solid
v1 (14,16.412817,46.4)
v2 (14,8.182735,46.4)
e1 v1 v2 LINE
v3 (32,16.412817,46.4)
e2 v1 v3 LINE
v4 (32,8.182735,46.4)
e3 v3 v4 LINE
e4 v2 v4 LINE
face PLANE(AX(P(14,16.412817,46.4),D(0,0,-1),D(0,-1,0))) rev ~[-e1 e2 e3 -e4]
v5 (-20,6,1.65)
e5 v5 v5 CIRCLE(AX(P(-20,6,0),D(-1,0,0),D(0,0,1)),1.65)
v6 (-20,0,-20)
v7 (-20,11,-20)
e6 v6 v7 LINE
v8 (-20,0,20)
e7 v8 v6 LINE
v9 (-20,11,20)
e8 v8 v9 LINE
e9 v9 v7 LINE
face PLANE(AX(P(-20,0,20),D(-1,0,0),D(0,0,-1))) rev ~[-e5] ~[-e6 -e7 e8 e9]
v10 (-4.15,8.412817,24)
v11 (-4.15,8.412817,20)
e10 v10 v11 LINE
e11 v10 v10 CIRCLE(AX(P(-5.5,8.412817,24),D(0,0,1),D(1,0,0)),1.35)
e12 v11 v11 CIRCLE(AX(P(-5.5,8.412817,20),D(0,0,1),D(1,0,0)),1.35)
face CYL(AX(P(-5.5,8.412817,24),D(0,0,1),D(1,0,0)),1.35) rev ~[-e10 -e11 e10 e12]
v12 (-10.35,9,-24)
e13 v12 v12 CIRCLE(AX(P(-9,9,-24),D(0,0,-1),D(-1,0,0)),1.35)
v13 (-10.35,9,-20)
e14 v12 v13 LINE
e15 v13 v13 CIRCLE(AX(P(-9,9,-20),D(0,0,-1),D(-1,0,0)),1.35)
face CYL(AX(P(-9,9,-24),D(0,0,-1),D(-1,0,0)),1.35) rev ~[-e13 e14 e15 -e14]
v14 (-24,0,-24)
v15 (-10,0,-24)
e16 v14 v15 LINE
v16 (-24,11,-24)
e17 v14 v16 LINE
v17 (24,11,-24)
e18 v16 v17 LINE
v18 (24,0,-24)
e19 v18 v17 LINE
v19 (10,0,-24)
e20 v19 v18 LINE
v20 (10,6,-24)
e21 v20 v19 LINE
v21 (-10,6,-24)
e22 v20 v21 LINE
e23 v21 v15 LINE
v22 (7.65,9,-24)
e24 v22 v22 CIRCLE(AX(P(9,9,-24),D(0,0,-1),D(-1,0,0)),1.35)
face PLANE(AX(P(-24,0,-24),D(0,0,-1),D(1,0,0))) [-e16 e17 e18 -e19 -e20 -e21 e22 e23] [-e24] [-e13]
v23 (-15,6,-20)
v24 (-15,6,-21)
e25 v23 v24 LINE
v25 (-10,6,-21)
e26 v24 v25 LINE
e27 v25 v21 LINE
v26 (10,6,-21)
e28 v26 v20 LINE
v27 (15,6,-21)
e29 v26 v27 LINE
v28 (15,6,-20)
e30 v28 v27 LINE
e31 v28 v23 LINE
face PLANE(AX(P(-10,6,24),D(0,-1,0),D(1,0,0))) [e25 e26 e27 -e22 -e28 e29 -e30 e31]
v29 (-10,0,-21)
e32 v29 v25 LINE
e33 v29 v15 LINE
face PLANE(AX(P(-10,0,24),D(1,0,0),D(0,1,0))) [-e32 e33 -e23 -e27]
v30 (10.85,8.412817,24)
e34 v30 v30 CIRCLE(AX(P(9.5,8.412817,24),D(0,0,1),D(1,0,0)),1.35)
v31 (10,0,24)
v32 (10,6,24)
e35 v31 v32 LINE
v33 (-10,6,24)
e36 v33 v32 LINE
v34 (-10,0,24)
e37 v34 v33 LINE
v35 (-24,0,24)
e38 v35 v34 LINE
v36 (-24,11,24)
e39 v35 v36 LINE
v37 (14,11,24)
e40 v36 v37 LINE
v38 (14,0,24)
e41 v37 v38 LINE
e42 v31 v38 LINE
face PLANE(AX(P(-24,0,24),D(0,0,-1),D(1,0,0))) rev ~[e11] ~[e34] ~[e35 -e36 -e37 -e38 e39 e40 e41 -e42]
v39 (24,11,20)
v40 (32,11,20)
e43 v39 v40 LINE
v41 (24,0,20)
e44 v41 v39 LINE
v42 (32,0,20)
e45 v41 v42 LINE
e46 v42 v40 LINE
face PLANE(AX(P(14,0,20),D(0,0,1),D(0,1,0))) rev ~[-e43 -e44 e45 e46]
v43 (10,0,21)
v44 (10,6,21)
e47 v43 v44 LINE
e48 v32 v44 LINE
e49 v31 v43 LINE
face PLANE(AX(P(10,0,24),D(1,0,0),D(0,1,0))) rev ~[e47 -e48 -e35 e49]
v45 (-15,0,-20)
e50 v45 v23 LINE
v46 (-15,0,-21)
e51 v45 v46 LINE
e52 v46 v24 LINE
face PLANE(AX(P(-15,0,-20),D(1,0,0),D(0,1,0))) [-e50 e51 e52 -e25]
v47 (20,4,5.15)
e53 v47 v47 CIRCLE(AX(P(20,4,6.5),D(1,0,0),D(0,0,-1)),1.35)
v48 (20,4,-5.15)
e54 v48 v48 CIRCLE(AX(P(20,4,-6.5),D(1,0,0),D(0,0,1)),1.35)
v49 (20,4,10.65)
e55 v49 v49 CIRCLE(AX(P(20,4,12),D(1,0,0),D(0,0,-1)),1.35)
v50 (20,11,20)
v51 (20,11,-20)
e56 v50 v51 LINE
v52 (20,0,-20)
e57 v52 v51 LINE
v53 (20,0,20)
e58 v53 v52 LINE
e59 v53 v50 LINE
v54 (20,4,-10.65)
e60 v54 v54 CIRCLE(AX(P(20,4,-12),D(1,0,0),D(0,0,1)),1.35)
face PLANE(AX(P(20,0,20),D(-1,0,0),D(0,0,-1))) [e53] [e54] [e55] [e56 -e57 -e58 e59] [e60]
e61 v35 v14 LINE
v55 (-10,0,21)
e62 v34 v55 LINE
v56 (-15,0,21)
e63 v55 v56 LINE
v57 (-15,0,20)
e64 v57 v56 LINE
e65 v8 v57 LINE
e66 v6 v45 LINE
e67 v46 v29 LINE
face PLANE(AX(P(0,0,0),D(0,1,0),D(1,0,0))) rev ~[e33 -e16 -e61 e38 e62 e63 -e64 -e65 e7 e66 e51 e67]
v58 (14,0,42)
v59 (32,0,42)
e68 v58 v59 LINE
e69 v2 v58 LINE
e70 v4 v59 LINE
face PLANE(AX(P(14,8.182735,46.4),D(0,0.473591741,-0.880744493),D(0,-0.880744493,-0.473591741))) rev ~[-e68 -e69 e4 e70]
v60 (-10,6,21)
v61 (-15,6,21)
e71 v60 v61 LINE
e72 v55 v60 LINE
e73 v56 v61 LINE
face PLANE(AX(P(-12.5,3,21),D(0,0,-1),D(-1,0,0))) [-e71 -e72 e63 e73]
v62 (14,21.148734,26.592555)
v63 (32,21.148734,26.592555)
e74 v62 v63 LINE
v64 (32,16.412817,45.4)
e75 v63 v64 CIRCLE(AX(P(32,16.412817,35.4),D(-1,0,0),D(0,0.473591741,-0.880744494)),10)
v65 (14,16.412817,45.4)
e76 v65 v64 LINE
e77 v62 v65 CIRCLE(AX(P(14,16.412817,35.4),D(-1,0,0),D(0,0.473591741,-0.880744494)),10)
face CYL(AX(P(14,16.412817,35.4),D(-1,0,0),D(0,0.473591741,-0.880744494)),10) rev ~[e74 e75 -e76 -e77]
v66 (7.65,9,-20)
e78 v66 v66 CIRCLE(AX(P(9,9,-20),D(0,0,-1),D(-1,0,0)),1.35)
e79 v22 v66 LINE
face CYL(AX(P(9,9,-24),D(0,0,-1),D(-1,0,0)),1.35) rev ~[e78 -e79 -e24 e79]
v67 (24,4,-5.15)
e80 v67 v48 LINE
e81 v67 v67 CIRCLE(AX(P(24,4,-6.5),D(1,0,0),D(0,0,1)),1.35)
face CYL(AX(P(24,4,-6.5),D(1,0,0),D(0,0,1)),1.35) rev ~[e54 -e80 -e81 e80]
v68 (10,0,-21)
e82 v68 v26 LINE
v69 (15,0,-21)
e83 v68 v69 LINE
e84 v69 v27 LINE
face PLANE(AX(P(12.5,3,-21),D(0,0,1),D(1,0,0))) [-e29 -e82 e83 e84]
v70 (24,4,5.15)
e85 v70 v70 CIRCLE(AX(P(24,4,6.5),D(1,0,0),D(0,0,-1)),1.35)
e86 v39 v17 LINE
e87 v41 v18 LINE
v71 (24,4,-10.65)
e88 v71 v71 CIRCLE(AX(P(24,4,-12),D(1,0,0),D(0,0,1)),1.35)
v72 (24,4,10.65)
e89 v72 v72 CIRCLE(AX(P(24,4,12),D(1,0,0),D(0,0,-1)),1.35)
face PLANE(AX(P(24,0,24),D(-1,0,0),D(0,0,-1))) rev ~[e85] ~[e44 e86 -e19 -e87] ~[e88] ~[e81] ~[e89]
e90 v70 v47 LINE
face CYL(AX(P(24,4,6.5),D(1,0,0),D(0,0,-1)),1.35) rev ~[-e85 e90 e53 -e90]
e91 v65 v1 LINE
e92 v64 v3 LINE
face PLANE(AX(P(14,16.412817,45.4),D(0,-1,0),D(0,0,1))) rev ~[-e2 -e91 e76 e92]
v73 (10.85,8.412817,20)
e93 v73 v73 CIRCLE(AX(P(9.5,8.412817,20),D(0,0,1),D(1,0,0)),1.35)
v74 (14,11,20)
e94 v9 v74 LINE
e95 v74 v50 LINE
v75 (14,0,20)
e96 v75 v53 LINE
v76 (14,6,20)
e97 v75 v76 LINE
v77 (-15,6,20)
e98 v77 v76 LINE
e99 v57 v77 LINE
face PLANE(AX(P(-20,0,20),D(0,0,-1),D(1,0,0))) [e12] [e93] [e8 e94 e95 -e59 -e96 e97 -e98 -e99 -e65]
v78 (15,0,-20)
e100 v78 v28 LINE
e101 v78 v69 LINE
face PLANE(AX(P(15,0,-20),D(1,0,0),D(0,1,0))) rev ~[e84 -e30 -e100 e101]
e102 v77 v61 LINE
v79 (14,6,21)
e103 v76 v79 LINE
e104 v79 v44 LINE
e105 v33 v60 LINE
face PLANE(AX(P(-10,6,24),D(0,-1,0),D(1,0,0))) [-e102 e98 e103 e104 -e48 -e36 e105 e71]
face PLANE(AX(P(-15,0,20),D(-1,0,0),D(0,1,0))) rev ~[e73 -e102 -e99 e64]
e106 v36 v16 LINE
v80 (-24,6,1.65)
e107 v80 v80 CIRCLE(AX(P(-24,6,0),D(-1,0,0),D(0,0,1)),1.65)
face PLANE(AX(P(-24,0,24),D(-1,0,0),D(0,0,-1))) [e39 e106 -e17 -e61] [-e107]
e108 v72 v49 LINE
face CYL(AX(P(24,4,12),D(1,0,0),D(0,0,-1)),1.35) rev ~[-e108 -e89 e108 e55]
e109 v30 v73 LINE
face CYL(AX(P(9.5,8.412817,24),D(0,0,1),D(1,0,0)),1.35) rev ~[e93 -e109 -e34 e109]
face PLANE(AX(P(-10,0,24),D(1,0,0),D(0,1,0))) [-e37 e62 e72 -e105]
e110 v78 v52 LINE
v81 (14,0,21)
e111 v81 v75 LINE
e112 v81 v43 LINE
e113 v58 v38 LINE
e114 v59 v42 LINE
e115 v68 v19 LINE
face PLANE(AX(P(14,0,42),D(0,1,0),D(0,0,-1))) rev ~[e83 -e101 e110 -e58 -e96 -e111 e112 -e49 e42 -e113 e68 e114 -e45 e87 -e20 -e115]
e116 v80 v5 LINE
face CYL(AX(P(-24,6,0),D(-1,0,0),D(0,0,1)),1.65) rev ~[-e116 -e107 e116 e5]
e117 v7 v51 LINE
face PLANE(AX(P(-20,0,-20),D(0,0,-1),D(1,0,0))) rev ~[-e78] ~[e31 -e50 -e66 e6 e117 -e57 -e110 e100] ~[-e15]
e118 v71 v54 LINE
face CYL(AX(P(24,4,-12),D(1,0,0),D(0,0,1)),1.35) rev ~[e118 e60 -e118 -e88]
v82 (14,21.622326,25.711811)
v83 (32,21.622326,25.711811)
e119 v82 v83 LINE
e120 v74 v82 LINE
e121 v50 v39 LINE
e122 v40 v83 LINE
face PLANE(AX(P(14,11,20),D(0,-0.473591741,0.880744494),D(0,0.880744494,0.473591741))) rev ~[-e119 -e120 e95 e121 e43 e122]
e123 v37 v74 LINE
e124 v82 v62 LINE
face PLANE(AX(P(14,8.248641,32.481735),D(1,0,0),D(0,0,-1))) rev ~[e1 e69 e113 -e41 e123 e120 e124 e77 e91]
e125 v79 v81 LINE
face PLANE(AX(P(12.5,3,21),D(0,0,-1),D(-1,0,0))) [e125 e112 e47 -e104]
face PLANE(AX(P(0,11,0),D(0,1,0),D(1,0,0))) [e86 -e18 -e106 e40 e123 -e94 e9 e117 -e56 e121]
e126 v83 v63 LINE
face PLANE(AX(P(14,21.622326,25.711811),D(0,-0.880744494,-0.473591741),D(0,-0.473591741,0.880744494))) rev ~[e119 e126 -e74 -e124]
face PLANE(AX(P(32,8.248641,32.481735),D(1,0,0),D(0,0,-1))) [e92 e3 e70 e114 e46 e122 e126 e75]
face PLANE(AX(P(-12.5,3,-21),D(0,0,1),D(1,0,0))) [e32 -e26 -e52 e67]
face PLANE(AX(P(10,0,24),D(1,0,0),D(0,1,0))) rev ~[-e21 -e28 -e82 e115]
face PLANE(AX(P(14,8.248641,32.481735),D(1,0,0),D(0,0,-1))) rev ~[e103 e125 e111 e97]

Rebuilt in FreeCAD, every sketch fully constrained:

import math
import FreeCAD as App
import Part
import Sketcher

V = App.Vector


def add_polygon(sketch, points):
    """Adds a closed chain of lines whose ends are joined by coincident constraints."""
    first, n = sketch.GeometryCount, len(points)
    for a, b in zip(points, points[1:] + points[:1]):
        sketch.addGeometry(Part.LineSegment(App.Vector(*a, 0), App.Vector(*b, 0)), False)
    for i in range(n):
        sketch.addConstraint(Sketcher.Constraint("Coincident", first + i, 2, first + (i + 1) % n, 1))

doc = App.newDocument("Part")
body = doc.addObject("PartDesign::Body", "Body")

# Sketch on XZ plane
sketch1 = doc.addObject("Sketcher::SketchObject", "Sketch")
body.addObject(sketch1)
sketch1.AttachmentSupport = (doc.XZ_Plane, [""])
sketch1.MapMode = "FlatFace"
add_polygon(sketch1, [(-24, -24), (-24, 24), (24, 24), (24, -24)])  # lines 0-3
add_polygon(sketch1, [(20, 20), (-20, 20), (-20, -20), (20, -20)])  # lines 4-7
sketch1.addConstraint([
    Sketcher.Constraint("Vertical", 0),
    Sketcher.Constraint("Horizontal", 1),
    Sketcher.Constraint("Vertical", 2),
    Sketcher.Constraint("Horizontal", 3),
    Sketcher.Constraint("Horizontal", 4),
    Sketcher.Constraint("Vertical", 5),
    Sketcher.Constraint("Horizontal", 6),
    Sketcher.Constraint("Vertical", 7),
    Sketcher.Constraint("Symmetric", 0, 2, 2, 2, -1, 1),
    Sketcher.Constraint("Symmetric", 4, 2, 6, 2, -1, 1),
    Sketcher.Constraint("Equal", 3, 0),
    Sketcher.Constraint("Equal", 6, 5),
    Sketcher.Constraint("DistanceX", 1, 1, 1, 2, 48.0),
    Sketcher.Constraint("DistanceX", 4, 2, 4, 1, 40.0),
])
pad1 = doc.addObject("PartDesign::Pad", "Pad")
body.addObject(pad1)
pad1.Profile = sketch1
pad1.Length = 11
pad1.Reversed = True

# Sketch on XY plane
sketch2 = doc.addObject("Sketcher::SketchObject", "Sketch001")
body.addObject(sketch2)
sketch2.AttachmentSupport = (doc.XY_Plane, [""])
sketch2.MapMode = "FlatFace"
sketch2.AttachmentOffset = App.Placement(V(0, 0, 24), App.Rotation())
add_polygon(sketch2, [(-10, 6), (-10, 0), (10, 0), (10, 6)])  # lines 0-3
sketch2.addConstraint([
    Sketcher.Constraint("Vertical", 0),
    Sketcher.Constraint("Horizontal", 1),
    Sketcher.Constraint("Vertical", 2),
    Sketcher.Constraint("Horizontal", 3),
    Sketcher.Constraint("Symmetric", 0, 2, 1, 2, -1, 1),
    Sketcher.Constraint("DistanceX", 1, 1, 1, 2, 20.0),
    Sketcher.Constraint("DistanceY", 0, 2, 0, 1, 6.0),
])
pocket1 = doc.addObject("PartDesign::Pocket", "Pocket")
body.addObject(pocket1)
pocket1.Profile = sketch2
pocket1.Type = "ThroughAll"

# Sketch on XY plane
sketch3 = doc.addObject("Sketcher::SketchObject", "Sketch002")
body.addObject(sketch3)
sketch3.AttachmentSupport = (doc.XY_Plane, [""])
sketch3.MapMode = "FlatFace"
sketch3.AttachmentOffset = App.Placement(V(0, 0, -20), App.Rotation())
add_polygon(sketch3, [(-15, 6), (-15, 0), (-10, 0), (-10, 6)])  # lines 0-3
add_polygon(sketch3, [(10, 6), (10, 0), (15, 0), (15, 6)])  # lines 4-7
sketch3.addConstraint([
    Sketcher.Constraint("Vertical", 0),
    Sketcher.Constraint("Horizontal", 1),
    Sketcher.Constraint("Vertical", 2),
    Sketcher.Constraint("Horizontal", 3),
    Sketcher.Constraint("Vertical", 4),
    Sketcher.Constraint("Horizontal", 5),
    Sketcher.Constraint("Vertical", 6),
    Sketcher.Constraint("Horizontal", 7),
    Sketcher.Constraint("Symmetric", 1, 2, 4, 2, -1, 1),
    Sketcher.Constraint("Symmetric", 0, 2, 5, 2, -2),
    Sketcher.Constraint("Horizontal", 3, 2, 6, 2),
    Sketcher.Constraint("DistanceX", 1, 1, 1, 2, 5.0),
    Sketcher.Constraint("DistanceY", 0, 2, 0, 1, 6.0),
    Sketcher.Constraint("DistanceX", 0, 2, -1, 1, 15.0),
])
pocket2 = doc.addObject("PartDesign::Pocket", "Pocket001")
body.addObject(pocket2)
pocket2.Profile = sketch3
pocket2.Length = 1

# Sketch on XY plane
sketch4 = doc.addObject("Sketcher::SketchObject", "Sketch003")
body.addObject(sketch4)
sketch4.AttachmentSupport = (doc.XY_Plane, [""])
sketch4.MapMode = "FlatFace"
sketch4.AttachmentOffset = App.Placement(V(0, 0, 20), App.Rotation())
add_polygon(sketch4, [(15, 6), (15, 0), (10, 0), (10, 6)])  # lines 0-3
add_polygon(sketch4, [(-10, 6), (-10, 0), (-15, 0), (-15, 6)])  # lines 4-7
sketch4.addConstraint([
    Sketcher.Constraint("Vertical", 0),
    Sketcher.Constraint("Horizontal", 1),
    Sketcher.Constraint("Vertical", 2),
    Sketcher.Constraint("Horizontal", 3),
    Sketcher.Constraint("Vertical", 4),
    Sketcher.Constraint("Horizontal", 5),
    Sketcher.Constraint("Vertical", 6),
    Sketcher.Constraint("Horizontal", 7),
    Sketcher.Constraint("Symmetric", 1, 2, 4, 2, -1, 1),
    Sketcher.Constraint("Symmetric", 0, 2, 5, 2, -2),
    Sketcher.Constraint("Horizontal", 3, 2, 6, 2),
    Sketcher.Constraint("DistanceX", 1, 2, 1, 1, 5.0),
    Sketcher.Constraint("DistanceY", 0, 2, 0, 1, 6.0),
    Sketcher.Constraint("DistanceX", -1, 1, 0, 2, 15.0),
])
pocket3 = doc.addObject("PartDesign::Pocket", "Pocket002")
body.addObject(pocket3)
pocket3.Profile = sketch4
pocket3.Length = 1
pocket3.Reversed = True

# Sketch on XY plane
sketch5 = doc.addObject("Sketcher::SketchObject", "Sketch004")
body.addObject(sketch5)
sketch5.AttachmentSupport = (doc.XY_Plane, [""])
sketch5.MapMode = "FlatFace"
sketch5.AttachmentOffset = App.Placement(V(0, 0, -24), App.Rotation())
sketch5.addGeometry(Part.Circle(V(9, 9, 0), V(0, 0, 1), 1.4), False)
sketch5.addConstraint([
    Sketcher.Constraint("Diameter", 0, 2.7),
    Sketcher.Constraint("DistanceX", -1, 1, 0, 3, 9.0),
    Sketcher.Constraint("DistanceY", -1, 1, 0, 3, 9.0),
])
pocket4 = doc.addObject("PartDesign::Pocket", "Pocket003")
body.addObject(pocket4)
pocket4.Profile = sketch5
pocket4.Type = "UpToFirst"
pocket4.Reversed = True

# Sketch on XY plane
sketch6 = doc.addObject("Sketcher::SketchObject", "Sketch005")
body.addObject(sketch6)
sketch6.AttachmentSupport = (doc.XY_Plane, [""])
sketch6.MapMode = "FlatFace"
sketch6.AttachmentOffset = App.Placement(V(0, 0, -24), App.Rotation())
sketch6.addGeometry(Part.Circle(V(-9, 9, 0), V(0, 0, 1), 1.4), False)
sketch6.addConstraint([
    Sketcher.Constraint("Diameter", 0, 2.7),
    Sketcher.Constraint("DistanceX", 0, 3, -1, 1, 9.0),
    Sketcher.Constraint("DistanceY", -1, 1, 0, 3, 9.0),
])
pocket5 = doc.addObject("PartDesign::Pocket", "Pocket004")
body.addObject(pocket5)
pocket5.Profile = sketch6
pocket5.Type = "UpToFirst"
pocket5.Reversed = True

# Sketch on XY plane
sketch7 = doc.addObject("Sketcher::SketchObject", "Sketch006")
body.addObject(sketch7)
sketch7.AttachmentSupport = (doc.XY_Plane, [""])
sketch7.MapMode = "FlatFace"
sketch7.AttachmentOffset = App.Placement(V(0, 0, 24), App.Rotation())
sketch7.addGeometry(Part.Circle(V(9.5, 8.4, 0), V(0, 0, 1), 1.4), False)
sketch7.addConstraint([
    Sketcher.Constraint("Diameter", 0, 2.7),
    Sketcher.Constraint("DistanceX", -1, 1, 0, 3, 9.5),
    Sketcher.Constraint("DistanceY", -1, 1, 0, 3, 8.412817),
])
pocket6 = doc.addObject("PartDesign::Pocket", "Pocket005")
body.addObject(pocket6)
pocket6.Profile = sketch7
pocket6.Type = "UpToFirst"

# Sketch on XY plane
sketch8 = doc.addObject("Sketcher::SketchObject", "Sketch007")
body.addObject(sketch8)
sketch8.AttachmentSupport = (doc.XY_Plane, [""])
sketch8.MapMode = "FlatFace"
sketch8.AttachmentOffset = App.Placement(V(0, 0, 24), App.Rotation())
sketch8.addGeometry(Part.Circle(V(-5.5, 8.4, 0), V(0, 0, 1), 1.4), False)
sketch8.addConstraint([
    Sketcher.Constraint("Diameter", 0, 2.7),
    Sketcher.Constraint("DistanceX", 0, 3, -1, 1, 5.5),
    Sketcher.Constraint("DistanceY", -1, 1, 0, 3, 8.412817),
])
pocket7 = doc.addObject("PartDesign::Pocket", "Pocket006")
body.addObject(pocket7)
pocket7.Profile = sketch8
pocket7.Type = "UpToFirst"

# Sketch on YZ plane
sketch9 = doc.addObject("Sketcher::SketchObject", "Sketch008")
body.addObject(sketch9)
sketch9.AttachmentSupport = (doc.YZ_Plane, [""])
sketch9.MapMode = "FlatFace"
sketch9.AttachmentOffset = App.Placement(V(0, 0, 24), App.Rotation())
sketch9.addGeometry(Part.Circle(V(4, 12, 0), V(0, 0, 1), 1.4), False)
sketch9.addConstraint([
    Sketcher.Constraint("Diameter", 0, 2.7),
    Sketcher.Constraint("DistanceX", -1, 1, 0, 3, 4.0),
    Sketcher.Constraint("DistanceY", -1, 1, 0, 3, 12.0),
])
pocket8 = doc.addObject("PartDesign::Pocket", "Pocket007")
body.addObject(pocket8)
pocket8.Profile = sketch9
pocket8.Type = "UpToFirst"

# Sketch on YZ plane
sketch10 = doc.addObject("Sketcher::SketchObject", "Sketch009")
body.addObject(sketch10)
sketch10.AttachmentSupport = (doc.YZ_Plane, [""])
sketch10.MapMode = "FlatFace"
sketch10.AttachmentOffset = App.Placement(V(0, 0, 24), App.Rotation())
sketch10.addGeometry(Part.Circle(V(4, 6.5, 0), V(0, 0, 1), 1.4), False)
sketch10.addConstraint([
    Sketcher.Constraint("Diameter", 0, 2.7),
    Sketcher.Constraint("DistanceX", -1, 1, 0, 3, 4.0),
    Sketcher.Constraint("DistanceY", -1, 1, 0, 3, 6.5),
])
pocket9 = doc.addObject("PartDesign::Pocket", "Pocket008")
body.addObject(pocket9)
pocket9.Profile = sketch10
pocket9.Type = "UpToFirst"

# Sketch on YZ plane
sketch11 = doc.addObject("Sketcher::SketchObject", "Sketch010")
body.addObject(sketch11)
sketch11.AttachmentSupport = (doc.YZ_Plane, [""])
sketch11.MapMode = "FlatFace"
sketch11.AttachmentOffset = App.Placement(V(0, 0, 24), App.Rotation())
sketch11.addGeometry(Part.Circle(V(4, -6.5, 0), V(0, 0, 1), 1.4), False)
sketch11.addConstraint([
    Sketcher.Constraint("Diameter", 0, 2.7),
    Sketcher.Constraint("DistanceX", -1, 1, 0, 3, 4.0),
    Sketcher.Constraint("DistanceY", 0, 3, -1, 1, 6.5),
])
pocket10 = doc.addObject("PartDesign::Pocket", "Pocket009")
body.addObject(pocket10)
pocket10.Profile = sketch11
pocket10.Type = "UpToFirst"

# Sketch on YZ plane
sketch12 = doc.addObject("Sketcher::SketchObject", "Sketch011")
body.addObject(sketch12)
sketch12.AttachmentSupport = (doc.YZ_Plane, [""])
sketch12.MapMode = "FlatFace"
sketch12.AttachmentOffset = App.Placement(V(0, 0, 24), App.Rotation())
sketch12.addGeometry(Part.Circle(V(4, -12, 0), V(0, 0, 1), 1.4), False)
sketch12.addConstraint([
    Sketcher.Constraint("Diameter", 0, 2.7),
    Sketcher.Constraint("DistanceX", -1, 1, 0, 3, 4.0),
    Sketcher.Constraint("DistanceY", 0, 3, -1, 1, 12.0),
])
pocket11 = doc.addObject("PartDesign::Pocket", "Pocket010")
body.addObject(pocket11)
pocket11.Profile = sketch12
pocket11.Type = "UpToFirst"

# Sketch on YZ plane
sketch13 = doc.addObject("Sketcher::SketchObject", "Sketch012")
body.addObject(sketch13)
sketch13.AttachmentSupport = (doc.YZ_Plane, [""])
sketch13.MapMode = "FlatFace"
sketch13.AttachmentOffset = App.Placement(V(0, 0, -24), App.Rotation())
sketch13.addGeometry(Part.Circle(V(6, 0, 0), V(0, 0, 1), 1.6), False)
sketch13.addConstraint([
    Sketcher.Constraint("PointOnObject", 0, 3, -1),
    Sketcher.Constraint("Diameter", 0, 3.3),
    Sketcher.Constraint("DistanceX", -1, 1, 0, 3, 6.0),
])
pocket12 = doc.addObject("PartDesign::Pocket", "Pocket011")
body.addObject(pocket12)
pocket12.Profile = sketch13
pocket12.Type = "UpToFirst"
pocket12.Reversed = True

# Sketch on YZ plane
sketch14 = doc.addObject("Sketcher::SketchObject", "Sketch013")
body.addObject(sketch14)
sketch14.AttachmentSupport = (doc.YZ_Plane, [""])
sketch14.MapMode = "FlatFace"
sketch14.AttachmentOffset = App.Placement(V(0, 0, 24), App.Rotation())
sketch14.addGeometry([
    Part.LineSegment(V(0, 42, 0), V(0, 20, 0)),  # 0
    Part.LineSegment(V(0, 20, 0), V(11, 20, 0)),  # 1
    Part.LineSegment(V(11, 20, 0), V(21.6, 25.7, 0)),  # 2
    Part.LineSegment(V(21.6, 25.7, 0), V(21.1, 26.6, 0)),  # 3
    Part.ArcOfCircle(Part.Circle(V(16.4, 35.4, 0), V(0, 0, 1), 10), math.radians(90), math.radians(298)),  # 4
    Part.LineSegment(V(16.4, 45.4, 0), V(16.4, 46.4, 0)),  # 5
    Part.LineSegment(V(16.4, 46.4, 0), V(8.2, 46.4, 0)),  # 6
    Part.LineSegment(V(8.2, 46.4, 0), V(0, 42, 0)),  # 7
], False)
sketch14.addConstraint([
    Sketcher.Constraint("Coincident", 0, 2, 1, 1),
    Sketcher.Constraint("Coincident", 1, 2, 2, 1),
    Sketcher.Constraint("Coincident", 2, 2, 3, 1),
    Sketcher.Constraint("Coincident", 3, 2, 4, 2),
    Sketcher.Constraint("Coincident", 4, 1, 5, 1),
    Sketcher.Constraint("Coincident", 5, 2, 6, 1),
    Sketcher.Constraint("Coincident", 6, 2, 7, 1),
    Sketcher.Constraint("Coincident", 7, 2, 0, 1),
    Sketcher.Constraint("Vertical", 0),
    Sketcher.Constraint("Horizontal", 1),
    Sketcher.Constraint("Vertical", 5),
    Sketcher.Constraint("Horizontal", 6),
    Sketcher.Constraint("PointOnObject", 0, 2, -2),
    Sketcher.Constraint("Perpendicular", 2, 3),
    Sketcher.Constraint("Perpendicular", 3, 7),
    Sketcher.Constraint("Radius", 4, 10.0),
    Sketcher.Constraint("DistanceX", 1, 1, 1, 2, 11.0),
    Sketcher.Constraint("DistanceY", 0, 2, 0, 1, 22.0),
    Sketcher.Constraint("DistanceY", 5, 1, 5, 2, 1.0),
    Sketcher.Constraint("Distance", 3, 1.0),
    Sketcher.Constraint("DistanceY", -1, 1, 0, 2, 20.0),
    Sketcher.Constraint("DistanceY", -1, 1, 4, 3, 35.4),
    Sketcher.Constraint("DistanceX", 6, 2, 3, 2, 12.965999),
    Sketcher.Constraint("DistanceX", 6, 2, 6, 1, 8.230081),
    Sketcher.Constraint("Distance", 2, 12.060621),
])
pad2 = doc.addObject("PartDesign::Pad", "Pad001")
body.addObject(pad2)
pad2.Profile = sketch14
pad2.Type = "TwoLengths"
pad2.Length = 8
pad2.Length2 = 10

doc.recompute()
